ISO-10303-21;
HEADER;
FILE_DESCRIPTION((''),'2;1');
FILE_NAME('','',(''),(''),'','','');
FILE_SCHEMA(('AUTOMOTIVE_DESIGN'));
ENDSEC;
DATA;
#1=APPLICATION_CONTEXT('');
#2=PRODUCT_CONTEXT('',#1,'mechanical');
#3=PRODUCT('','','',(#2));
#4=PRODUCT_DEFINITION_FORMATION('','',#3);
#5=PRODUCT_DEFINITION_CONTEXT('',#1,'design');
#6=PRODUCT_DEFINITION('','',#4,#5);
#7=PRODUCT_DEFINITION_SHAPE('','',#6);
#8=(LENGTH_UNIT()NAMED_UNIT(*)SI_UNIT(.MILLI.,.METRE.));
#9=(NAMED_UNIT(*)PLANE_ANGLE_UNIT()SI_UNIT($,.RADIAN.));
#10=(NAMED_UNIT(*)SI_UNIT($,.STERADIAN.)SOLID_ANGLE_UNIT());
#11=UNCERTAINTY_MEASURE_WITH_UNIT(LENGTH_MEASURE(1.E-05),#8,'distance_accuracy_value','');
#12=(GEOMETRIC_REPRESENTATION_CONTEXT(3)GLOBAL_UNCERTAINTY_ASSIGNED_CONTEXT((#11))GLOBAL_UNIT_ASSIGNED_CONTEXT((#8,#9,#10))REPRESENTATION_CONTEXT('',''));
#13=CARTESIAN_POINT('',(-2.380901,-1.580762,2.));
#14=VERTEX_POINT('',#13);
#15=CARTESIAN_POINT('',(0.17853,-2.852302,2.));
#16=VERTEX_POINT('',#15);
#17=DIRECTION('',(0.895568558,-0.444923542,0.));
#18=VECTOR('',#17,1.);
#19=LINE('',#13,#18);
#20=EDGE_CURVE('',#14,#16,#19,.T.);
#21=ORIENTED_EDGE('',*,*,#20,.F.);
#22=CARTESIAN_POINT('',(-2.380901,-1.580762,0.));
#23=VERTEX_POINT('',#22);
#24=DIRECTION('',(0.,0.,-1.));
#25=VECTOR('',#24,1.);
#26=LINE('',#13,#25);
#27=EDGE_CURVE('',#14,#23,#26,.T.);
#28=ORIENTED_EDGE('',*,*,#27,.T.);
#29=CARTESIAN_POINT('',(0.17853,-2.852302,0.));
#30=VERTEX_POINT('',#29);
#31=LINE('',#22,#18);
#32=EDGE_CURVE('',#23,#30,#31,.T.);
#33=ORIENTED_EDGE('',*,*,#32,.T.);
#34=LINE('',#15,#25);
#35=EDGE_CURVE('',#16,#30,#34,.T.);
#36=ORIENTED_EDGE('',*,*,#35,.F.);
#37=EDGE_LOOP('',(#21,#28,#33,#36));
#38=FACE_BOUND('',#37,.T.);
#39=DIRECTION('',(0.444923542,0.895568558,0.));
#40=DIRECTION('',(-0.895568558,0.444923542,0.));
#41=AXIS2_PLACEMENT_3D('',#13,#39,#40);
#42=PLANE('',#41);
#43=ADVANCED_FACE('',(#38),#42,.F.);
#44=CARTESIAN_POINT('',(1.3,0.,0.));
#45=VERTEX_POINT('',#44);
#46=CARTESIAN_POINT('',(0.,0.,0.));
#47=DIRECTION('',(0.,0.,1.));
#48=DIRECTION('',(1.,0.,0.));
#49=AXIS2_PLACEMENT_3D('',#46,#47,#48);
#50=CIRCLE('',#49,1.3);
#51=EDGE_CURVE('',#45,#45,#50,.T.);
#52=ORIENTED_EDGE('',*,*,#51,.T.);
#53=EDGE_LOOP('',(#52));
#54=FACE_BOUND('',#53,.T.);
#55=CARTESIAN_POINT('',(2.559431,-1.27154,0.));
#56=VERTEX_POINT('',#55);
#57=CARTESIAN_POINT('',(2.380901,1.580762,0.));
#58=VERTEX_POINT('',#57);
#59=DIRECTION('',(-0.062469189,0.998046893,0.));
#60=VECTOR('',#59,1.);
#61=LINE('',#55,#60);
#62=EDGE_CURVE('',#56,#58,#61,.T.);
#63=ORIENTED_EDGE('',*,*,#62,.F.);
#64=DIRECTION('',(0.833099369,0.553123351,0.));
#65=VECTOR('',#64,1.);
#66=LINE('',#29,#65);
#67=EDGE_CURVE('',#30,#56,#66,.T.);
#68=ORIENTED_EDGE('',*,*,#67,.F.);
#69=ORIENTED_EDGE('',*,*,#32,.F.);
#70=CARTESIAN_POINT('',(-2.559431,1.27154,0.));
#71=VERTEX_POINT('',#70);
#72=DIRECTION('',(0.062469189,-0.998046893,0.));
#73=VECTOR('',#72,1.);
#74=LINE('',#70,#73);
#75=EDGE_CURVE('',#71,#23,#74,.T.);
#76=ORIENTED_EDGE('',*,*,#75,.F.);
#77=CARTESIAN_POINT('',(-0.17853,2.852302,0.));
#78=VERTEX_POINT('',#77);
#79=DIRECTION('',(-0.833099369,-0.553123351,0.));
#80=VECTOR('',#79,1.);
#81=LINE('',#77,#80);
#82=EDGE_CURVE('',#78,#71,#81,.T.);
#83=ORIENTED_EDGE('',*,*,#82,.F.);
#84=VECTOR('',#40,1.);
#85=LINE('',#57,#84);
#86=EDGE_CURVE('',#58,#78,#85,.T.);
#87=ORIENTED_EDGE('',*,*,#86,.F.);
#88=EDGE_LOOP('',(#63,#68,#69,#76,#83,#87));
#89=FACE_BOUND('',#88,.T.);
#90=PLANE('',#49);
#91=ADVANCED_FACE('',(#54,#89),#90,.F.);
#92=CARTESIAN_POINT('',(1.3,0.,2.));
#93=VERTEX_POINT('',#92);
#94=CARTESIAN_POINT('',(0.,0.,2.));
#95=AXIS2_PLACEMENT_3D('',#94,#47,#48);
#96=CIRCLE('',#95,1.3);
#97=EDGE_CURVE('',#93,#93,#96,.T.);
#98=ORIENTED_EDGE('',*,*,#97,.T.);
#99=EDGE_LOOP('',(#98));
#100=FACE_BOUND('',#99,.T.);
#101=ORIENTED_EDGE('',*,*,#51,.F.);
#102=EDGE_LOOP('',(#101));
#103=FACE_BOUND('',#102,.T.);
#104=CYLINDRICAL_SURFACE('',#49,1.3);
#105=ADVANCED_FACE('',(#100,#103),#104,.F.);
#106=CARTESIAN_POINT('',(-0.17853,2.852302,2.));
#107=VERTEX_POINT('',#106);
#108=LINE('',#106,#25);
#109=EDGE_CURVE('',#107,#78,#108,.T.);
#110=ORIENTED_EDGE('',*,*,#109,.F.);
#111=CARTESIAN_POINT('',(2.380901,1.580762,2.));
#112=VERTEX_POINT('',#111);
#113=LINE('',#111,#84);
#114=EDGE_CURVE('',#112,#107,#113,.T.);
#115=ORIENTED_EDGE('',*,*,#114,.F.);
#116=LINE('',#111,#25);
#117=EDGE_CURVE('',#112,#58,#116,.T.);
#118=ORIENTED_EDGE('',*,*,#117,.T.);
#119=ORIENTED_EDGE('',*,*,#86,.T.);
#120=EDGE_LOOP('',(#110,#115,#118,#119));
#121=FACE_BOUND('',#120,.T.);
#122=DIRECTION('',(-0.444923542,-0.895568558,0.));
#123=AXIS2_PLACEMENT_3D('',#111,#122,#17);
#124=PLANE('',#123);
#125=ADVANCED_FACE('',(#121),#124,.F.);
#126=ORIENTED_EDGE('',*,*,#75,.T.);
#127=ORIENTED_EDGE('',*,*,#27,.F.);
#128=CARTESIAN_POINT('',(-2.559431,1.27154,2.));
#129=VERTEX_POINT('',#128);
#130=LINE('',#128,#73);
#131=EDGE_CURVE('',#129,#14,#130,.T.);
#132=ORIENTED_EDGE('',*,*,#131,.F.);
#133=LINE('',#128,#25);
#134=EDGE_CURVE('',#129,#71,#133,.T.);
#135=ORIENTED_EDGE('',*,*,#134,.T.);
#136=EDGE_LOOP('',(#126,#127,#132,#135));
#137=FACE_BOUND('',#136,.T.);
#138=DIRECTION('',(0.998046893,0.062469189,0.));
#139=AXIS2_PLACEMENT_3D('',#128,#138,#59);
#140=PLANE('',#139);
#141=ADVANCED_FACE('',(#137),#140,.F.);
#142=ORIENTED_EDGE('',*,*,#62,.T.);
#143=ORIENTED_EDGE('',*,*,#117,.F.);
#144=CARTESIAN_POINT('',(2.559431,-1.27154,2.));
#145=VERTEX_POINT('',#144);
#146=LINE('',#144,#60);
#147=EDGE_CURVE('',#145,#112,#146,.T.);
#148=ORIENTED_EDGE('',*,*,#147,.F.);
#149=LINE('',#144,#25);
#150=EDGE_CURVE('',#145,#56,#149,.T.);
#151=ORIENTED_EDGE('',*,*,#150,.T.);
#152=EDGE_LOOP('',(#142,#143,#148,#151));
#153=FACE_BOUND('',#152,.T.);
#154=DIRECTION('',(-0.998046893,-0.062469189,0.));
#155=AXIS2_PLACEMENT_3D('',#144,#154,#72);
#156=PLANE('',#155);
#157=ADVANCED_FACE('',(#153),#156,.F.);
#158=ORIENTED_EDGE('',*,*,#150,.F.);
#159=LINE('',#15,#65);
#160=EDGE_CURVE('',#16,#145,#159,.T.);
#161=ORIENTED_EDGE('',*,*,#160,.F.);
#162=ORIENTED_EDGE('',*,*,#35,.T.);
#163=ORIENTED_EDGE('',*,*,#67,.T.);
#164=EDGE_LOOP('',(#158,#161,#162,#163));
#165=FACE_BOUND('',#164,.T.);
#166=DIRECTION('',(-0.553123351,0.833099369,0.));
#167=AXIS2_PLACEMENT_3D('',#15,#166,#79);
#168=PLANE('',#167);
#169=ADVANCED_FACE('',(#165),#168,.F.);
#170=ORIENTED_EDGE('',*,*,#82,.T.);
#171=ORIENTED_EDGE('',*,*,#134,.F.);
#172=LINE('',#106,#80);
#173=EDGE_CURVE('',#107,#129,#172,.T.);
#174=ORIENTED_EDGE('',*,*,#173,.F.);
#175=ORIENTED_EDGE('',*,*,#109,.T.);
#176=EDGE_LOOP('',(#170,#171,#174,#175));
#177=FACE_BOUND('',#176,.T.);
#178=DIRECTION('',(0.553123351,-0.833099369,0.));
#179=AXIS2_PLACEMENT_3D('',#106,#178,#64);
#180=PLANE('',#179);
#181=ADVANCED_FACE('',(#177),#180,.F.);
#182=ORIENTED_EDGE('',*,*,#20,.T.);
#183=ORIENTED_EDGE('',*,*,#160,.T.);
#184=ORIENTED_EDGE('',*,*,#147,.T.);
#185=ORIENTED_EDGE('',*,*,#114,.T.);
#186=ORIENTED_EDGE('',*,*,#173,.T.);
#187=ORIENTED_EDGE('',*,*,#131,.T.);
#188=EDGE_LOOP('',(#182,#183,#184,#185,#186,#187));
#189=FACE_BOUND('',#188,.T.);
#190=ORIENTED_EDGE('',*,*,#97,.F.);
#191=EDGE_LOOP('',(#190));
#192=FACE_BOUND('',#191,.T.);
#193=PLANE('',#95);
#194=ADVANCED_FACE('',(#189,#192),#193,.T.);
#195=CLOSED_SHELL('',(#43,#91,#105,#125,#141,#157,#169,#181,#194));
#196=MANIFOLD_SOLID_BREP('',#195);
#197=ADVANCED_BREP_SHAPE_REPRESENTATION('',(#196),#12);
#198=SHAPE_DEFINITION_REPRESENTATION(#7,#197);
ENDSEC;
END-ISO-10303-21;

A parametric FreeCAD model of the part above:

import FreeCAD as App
import Part
import Sketcher
Q = App.Units.Quantity

doc = App.newDocument("Part")
params = doc.addObject("Spreadsheet::Sheet", "Params")
for row, (alias, value) in enumerate([
    ("pad1_length", "2 mm"),
    ("sketch2_diameter", "2.6 mm"),
], start=1):
    params.set(f"A{row}", alias)
    params.set(f"B{row}", "=" + value)
    params.setAlias(f"B{row}", alias)

body = doc.addObject("PartDesign::Body", "Body")

sketch1 = body.newObject("Sketcher::SketchObject", "Sketch")
sketch1.AttachmentSupport = (doc.getObject("XY_Plane"), [""])
sketch1.MapMode = "FlatFace"
sketch1.addGeometry([
    Part.LineSegment(App.Vector(-2.380901, -1.580762, 0), App.Vector(0.17853, -2.852302, 0)),
    Part.LineSegment(App.Vector(0.17853, -2.852302, 0), App.Vector(2.559431, -1.27154, 0)),
    Part.LineSegment(App.Vector(2.559431, -1.27154, 0), App.Vector(2.380901, 1.580762, 0)),
    Part.LineSegment(App.Vector(2.380901, 1.580762, 0), App.Vector(-0.17853, 2.852302, 0)),
    Part.LineSegment(App.Vector(-0.17853, 2.852302, 0), App.Vector(-2.559431, 1.27154, 0)),
    Part.LineSegment(App.Vector(-2.559431, 1.27154, 0), App.Vector(-2.380901, -1.580762, 0)),
], False)
sketch1.addConstraint([
    Sketcher.Constraint("Coincident", 0, 2, 1, 1),
    Sketcher.Constraint("Coincident", 1, 2, 2, 1),
    Sketcher.Constraint("Coincident", 2, 2, 3, 1),
    Sketcher.Constraint("Coincident", 3, 2, 4, 1),
    Sketcher.Constraint("Coincident", 4, 2, 5, 1),
    Sketcher.Constraint("Coincident", 5, 2, 0, 1),
    Sketcher.Constraint("Symmetric", 0, 2, 3, 2, -1, 1),
    Sketcher.Constraint("Symmetric", 1, 2, 4, 2, -1, 1),
    Sketcher.Constraint("Symmetric", 2, 2, 5, 2, -1, 1),
    Sketcher.Constraint("Equal", 0, 1),
    Sketcher.Constraint("Equal", 1, 2),
    Sketcher.Constraint("DistanceX", -1, 1, 2, 2, Q("2.380901 mm")),
    Sketcher.Constraint("DistanceX", 0, 2, 1, 2, Q("2.380901 mm")),
    Sketcher.Constraint("DistanceX", -1, 1, 0, 2, Q("0.17853 mm")),
    Sketcher.Constraint("DistanceY", 1, 2, -1, 1, Q("1.27154 mm")),
])
pad1 = body.newObject("PartDesign::Pad", "Pad")
pad1.Profile = sketch1
pad1.setExpression("Length", "Params.pad1_length")

sketch2 = body.newObject("Sketcher::SketchObject", "Sketch001")
sketch2.AttachmentSupport = (doc.getObject("XY_Plane"), [""])
sketch2.MapMode = "FlatFace"
sketch2.AttachmentOffset = App.Placement(App.Vector(0, 0, 2), App.Rotation())
sketch2.addGeometry(Part.Circle(App.Vector(0, 0, 0), App.Vector(0, 0, 1), 1.3), False)
sketch2.addConstraint([
    Sketcher.Constraint("Coincident", 0, 3, -1, 1),
    Sketcher.Constraint("Diameter", 0, Q("2.6 mm")),
])
sketch2.setExpression("Constraints[1]", "Params.sketch2_diameter")
pocket1 = body.newObject("PartDesign::Pocket", "Pocket")
pocket1.Profile = sketch2
pocket1.Type = "ThroughAll"

doc.recompute()
